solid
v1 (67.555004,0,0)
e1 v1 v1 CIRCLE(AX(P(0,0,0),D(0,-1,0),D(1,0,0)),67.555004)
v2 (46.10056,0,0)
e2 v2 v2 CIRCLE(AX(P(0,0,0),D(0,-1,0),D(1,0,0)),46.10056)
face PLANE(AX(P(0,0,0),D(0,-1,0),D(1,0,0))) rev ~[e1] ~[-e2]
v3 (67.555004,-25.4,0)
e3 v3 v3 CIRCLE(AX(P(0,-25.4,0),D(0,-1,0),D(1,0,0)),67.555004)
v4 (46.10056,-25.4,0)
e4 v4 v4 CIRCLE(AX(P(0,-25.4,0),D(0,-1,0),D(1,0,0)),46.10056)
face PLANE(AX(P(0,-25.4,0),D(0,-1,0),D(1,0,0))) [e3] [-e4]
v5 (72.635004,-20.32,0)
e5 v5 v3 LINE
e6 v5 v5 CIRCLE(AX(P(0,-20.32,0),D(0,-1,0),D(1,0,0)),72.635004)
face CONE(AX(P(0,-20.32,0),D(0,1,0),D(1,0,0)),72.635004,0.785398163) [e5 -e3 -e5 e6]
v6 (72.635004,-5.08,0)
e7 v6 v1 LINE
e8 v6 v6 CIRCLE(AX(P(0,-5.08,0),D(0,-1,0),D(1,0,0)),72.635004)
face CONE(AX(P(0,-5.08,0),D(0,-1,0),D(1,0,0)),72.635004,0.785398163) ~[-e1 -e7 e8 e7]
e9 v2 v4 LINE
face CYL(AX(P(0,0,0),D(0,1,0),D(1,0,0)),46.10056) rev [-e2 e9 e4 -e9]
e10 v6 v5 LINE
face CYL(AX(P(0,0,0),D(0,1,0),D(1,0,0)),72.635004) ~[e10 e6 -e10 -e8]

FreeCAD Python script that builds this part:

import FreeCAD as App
import Part
import Sketcher
from FreeCAD import Vector
Q = App.Units.Quantity


def edges_at(feature, points):
    """Names of the edges that pass closest to the given points."""
    edges = feature.Shape.Edges
    near = lambda p: min(range(len(edges)), key=lambda i: edges[i].distToShape(Part.Vertex(*p))[0])
    return sorted({f"Edge{near(p) + 1}" for p in points})

doc = App.newDocument("Part")
body = doc.addObject("PartDesign::Body", "Body")

sketch1 = body.newObject("Sketcher::SketchObject", "Sketch")
sketch1.AttachmentSupport = (doc.getObject("XZ_Plane"), [""])
sketch1.MapMode = "FlatFace"
sketch1.addGeometry(Part.Circle(Vector(0, 0, 0), Vector(0, 0, 1), 73), False)
sketch1.addGeometry(Part.Circle(Vector(0, 0, 0), Vector(0, 0, 1), 46), False)
sketch1.addConstraint(Sketcher.Constraint("Coincident", 0, 3, -1, 1))
sketch1.addConstraint(Sketcher.Constraint("Coincident", 1, 3, -1, 1))
sketch1.addConstraint(Sketcher.Constraint("Diameter", 1, 92.20112))
sketch1.addConstraint(Sketcher.Constraint("Diameter", 0, 145.270008))
pad1 = body.newObject("PartDesign::Pad", "Pad")
pad1.Profile = sketch1
pad1.Length = Q("1 in")
doc.recompute()

chamfer = body.newObject("PartDesign::Chamfer", "Chamfer")
chamfer.Base = (pad1, edges_at(pad1, [(72.635, -12.7, 0), (-72.635, 0, 0), (-72.635, -25.4, 0)]))
chamfer.Size = Q("0.2 in")

doc.recompute()
